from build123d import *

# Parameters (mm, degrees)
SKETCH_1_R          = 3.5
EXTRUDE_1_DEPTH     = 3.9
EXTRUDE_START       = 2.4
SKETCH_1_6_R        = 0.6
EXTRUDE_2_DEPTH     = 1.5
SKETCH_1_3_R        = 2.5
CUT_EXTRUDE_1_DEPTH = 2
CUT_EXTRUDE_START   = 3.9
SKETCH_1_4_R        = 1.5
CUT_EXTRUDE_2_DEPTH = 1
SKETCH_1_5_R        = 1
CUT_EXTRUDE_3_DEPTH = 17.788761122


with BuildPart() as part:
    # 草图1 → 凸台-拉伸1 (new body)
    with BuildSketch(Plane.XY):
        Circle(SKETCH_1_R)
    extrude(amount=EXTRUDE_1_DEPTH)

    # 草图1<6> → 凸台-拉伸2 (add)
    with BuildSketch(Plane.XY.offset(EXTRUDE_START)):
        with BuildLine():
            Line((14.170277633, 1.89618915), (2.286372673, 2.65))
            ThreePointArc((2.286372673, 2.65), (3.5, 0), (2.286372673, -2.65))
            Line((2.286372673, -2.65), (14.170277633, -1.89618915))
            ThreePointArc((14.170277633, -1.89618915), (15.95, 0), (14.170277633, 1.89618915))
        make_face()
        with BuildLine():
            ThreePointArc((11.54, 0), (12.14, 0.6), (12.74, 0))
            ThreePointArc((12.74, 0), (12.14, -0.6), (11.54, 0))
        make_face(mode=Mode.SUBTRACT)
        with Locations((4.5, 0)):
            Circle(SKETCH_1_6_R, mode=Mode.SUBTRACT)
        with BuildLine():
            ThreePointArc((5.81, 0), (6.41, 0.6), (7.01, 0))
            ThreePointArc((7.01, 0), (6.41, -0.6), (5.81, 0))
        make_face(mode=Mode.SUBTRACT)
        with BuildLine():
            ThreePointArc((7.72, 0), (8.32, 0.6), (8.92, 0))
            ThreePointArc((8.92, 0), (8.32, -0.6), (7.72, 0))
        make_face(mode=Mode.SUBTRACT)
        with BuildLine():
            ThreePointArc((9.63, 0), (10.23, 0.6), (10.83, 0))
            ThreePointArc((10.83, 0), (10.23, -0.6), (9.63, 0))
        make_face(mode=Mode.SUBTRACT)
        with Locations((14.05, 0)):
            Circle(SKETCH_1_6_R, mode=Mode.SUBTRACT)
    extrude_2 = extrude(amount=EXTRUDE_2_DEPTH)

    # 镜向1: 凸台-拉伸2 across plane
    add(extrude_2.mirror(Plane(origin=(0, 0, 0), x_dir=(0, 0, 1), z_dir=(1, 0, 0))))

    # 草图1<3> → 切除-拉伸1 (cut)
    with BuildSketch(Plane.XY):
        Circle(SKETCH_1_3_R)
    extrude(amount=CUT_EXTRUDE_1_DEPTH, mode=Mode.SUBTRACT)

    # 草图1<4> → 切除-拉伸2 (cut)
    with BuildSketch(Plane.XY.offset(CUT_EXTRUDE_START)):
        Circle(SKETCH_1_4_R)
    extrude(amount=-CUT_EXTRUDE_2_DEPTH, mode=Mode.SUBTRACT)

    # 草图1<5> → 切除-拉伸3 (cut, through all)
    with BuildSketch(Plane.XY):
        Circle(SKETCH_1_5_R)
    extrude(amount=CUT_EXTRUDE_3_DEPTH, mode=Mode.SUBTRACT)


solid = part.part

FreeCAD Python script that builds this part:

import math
import FreeCAD as App
import Part
import Sketcher

V = App.Vector
Q = App.Units.Quantity

doc = App.newDocument("Part")
body = doc.addObject("PartDesign::Body", "Body")

sketch1 = body.newObject("Sketcher::SketchObject", "Sketch")
sketch1.AttachmentSupport = (doc.getObject("XY_Plane"), [""])
sketch1.MapMode = "FlatFace"
sketch1.addGeometry(Part.Circle(V(0, 0, 0), V(0, 0, 1), 3.5), False)
sketch1.addConstraint([
    Sketcher.Constraint("Coincident", 0, 3, -1, 1),
    Sketcher.Constraint("Diameter", 0, Q("7 mm")),
])
pad1 = body.newObject("PartDesign::Pad", "Pad")
pad1.Profile = sketch1
pad1.Length = 3.9

sketch2 = body.newObject("Sketcher::SketchObject", "Sketch001")
sketch2.AttachmentSupport = (doc.getObject("XY_Plane"), [""])
sketch2.MapMode = "FlatFace"
sketch2.AttachmentOffset = App.Placement(V(0, 0, 2.4), App.Rotation())
sketch2.addGeometry([
    Part.LineSegment(V(14.2, 1.9, 0), V(2.3, 2.6, 0)),
    Part.ArcOfCircle(Part.Circle(V(0, 0, 0), V(0, 0, 1), 3.5), math.radians(-49), math.radians(49)),
    Part.LineSegment(V(2.3, -2.6, 0), V(14.2, -1.9, 0)),
    Part.ArcOfCircle(Part.Circle(V(14.1, 0, 0), V(0, 0, 1), 1.9), math.radians(-86), math.radians(86)),
    Part.Circle(V(4.5, 0, 0), V(0, 0, 1), 0.6),
    Part.Circle(V(6.4, 0, 0), V(0, 0, 1), 0.6),
    Part.Circle(V(8.3, 0, 0), V(0, 0, 1), 0.6),
    Part.Circle(V(10.2, 0, 0), V(0, 0, 1), 0.6),
    Part.Circle(V(14.1, 0, 0), V(0, 0, 1), 0.6),
    Part.Circle(V(12.1, 0, 0), V(0, 0, 1), 0.6),
], False)
sketch2.addConstraint([
    Sketcher.Constraint("Coincident", 0, 2, 1, 2),
    Sketcher.Constraint("Coincident", 1, 1, 2, 1),
    Sketcher.Constraint("Tangent", 2, 2, 3, 1),
    Sketcher.Constraint("Tangent", 3, 2, 0, 1),
    Sketcher.Constraint("Coincident", 1, 3, -1, 1),
    Sketcher.Constraint("Coincident", 8, 3, 3, 3),
    Sketcher.Constraint("Equal", 4, 5),
    Sketcher.Constraint("Equal", 5, 6),
    Sketcher.Constraint("Equal", 6, 7),
    Sketcher.Constraint("Equal", 7, 8),
    Sketcher.Constraint("Equal", 8, 9),
    Sketcher.Constraint("Symmetric", 2, 2, 3, 2, -1),
    Sketcher.Constraint("PointOnObject", 4, 3, -1),
    Sketcher.Constraint("PointOnObject", 5, 3, -1),
    Sketcher.Constraint("PointOnObject", 6, 3, -1),
    Sketcher.Constraint("PointOnObject", 7, 3, -1),
    Sketcher.Constraint("PointOnObject", 9, 3, -1),
    Sketcher.Constraint("Diameter", 4, Q("1.2 mm")),
    Sketcher.Constraint("Radius", 1, Q("3.5 mm")),
    Sketcher.Constraint("Radius", 3, Q("1.9 mm")),
    Sketcher.Constraint("DistanceX", -1, 1, 4, 3, Q("4.5 mm")),
    Sketcher.Constraint("DistanceY", 1, 1, 0, 2, Q("5.3 mm")),
    Sketcher.Constraint("DistanceX", -1, 1, 3, 3, Q("14.05 mm")),
    Sketcher.Constraint("DistanceX", -1, 1, 5, 3, Q("6.41 mm")),
    Sketcher.Constraint("DistanceX", -1, 1, 6, 3, Q("8.32 mm")),
    Sketcher.Constraint("DistanceX", -1, 1, 7, 3, Q("10.23 mm")),
    Sketcher.Constraint("DistanceX", -1, 1, 9, 3, Q("12.14 mm")),
])
pad2 = body.newObject("PartDesign::Pad", "Pad001")
pad2.Profile = sketch2
pad2.Length = 1.5
doc.recompute()

mirrored = body.newObject("PartDesign::Mirrored", "Mirrored")
mirrored.Originals = [pad2]
mirrored.MirrorPlane = (doc.getObject("YZ_Plane"), [""])
body.Tip = mirrored

sketch3 = body.newObject("Sketcher::SketchObject", "Sketch002")
sketch3.AttachmentSupport = (doc.getObject("XY_Plane"), [""])
sketch3.MapMode = "FlatFace"
sketch3.addGeometry(Part.Circle(V(0, 0, 0), V(0, 0, 1), 2.5), False)
sketch3.addConstraint([
    Sketcher.Constraint("Coincident", 0, 3, -1, 1),
    Sketcher.Constraint("Diameter", 0, Q("5 mm")),
])
pocket1 = body.newObject("PartDesign::Pocket", "Pocket")
pocket1.Profile = sketch3
pocket1.Length = 2
pocket1.Reversed = True

sketch4 = body.newObject("Sketcher::SketchObject", "Sketch003")
sketch4.AttachmentSupport = (doc.getObject("XY_Plane"), [""])
sketch4.MapMode = "FlatFace"
sketch4.AttachmentOffset = App.Placement(V(0, 0, 3.9), App.Rotation())
sketch4.addGeometry(Part.Circle(V(0, 0, 0), V(0, 0, 1), 1.5), False)
sketch4.addConstraint([
    Sketcher.Constraint("Coincident", 0, 3, -1, 1),
    Sketcher.Constraint("Diameter", 0, Q("3 mm")),
])
pocket2 = body.newObject("PartDesign::Pocket", "Pocket001")
pocket2.Profile = sketch4
pocket2.Length = 1

sketch5 = body.newObject("Sketcher::SketchObject", "Sketch004")
sketch5.AttachmentSupport = (doc.getObject("XY_Plane"), [""])
sketch5.MapMode = "FlatFace"
sketch5.addGeometry(Part.Circle(V(0, 0, 0), V(0, 0, 1), 1), False)
sketch5.addConstraint([
    Sketcher.Constraint("Coincident", 0, 3, -1, 1),
    Sketcher.Constraint("Diameter", 0, Q("2 mm")),
])
pocket3 = body.newObject("PartDesign::Pocket", "Pocket002")
pocket3.Profile = sketch5
pocket3.Type = "ThroughAll"
pocket3.Reversed = True

doc.recompute()
